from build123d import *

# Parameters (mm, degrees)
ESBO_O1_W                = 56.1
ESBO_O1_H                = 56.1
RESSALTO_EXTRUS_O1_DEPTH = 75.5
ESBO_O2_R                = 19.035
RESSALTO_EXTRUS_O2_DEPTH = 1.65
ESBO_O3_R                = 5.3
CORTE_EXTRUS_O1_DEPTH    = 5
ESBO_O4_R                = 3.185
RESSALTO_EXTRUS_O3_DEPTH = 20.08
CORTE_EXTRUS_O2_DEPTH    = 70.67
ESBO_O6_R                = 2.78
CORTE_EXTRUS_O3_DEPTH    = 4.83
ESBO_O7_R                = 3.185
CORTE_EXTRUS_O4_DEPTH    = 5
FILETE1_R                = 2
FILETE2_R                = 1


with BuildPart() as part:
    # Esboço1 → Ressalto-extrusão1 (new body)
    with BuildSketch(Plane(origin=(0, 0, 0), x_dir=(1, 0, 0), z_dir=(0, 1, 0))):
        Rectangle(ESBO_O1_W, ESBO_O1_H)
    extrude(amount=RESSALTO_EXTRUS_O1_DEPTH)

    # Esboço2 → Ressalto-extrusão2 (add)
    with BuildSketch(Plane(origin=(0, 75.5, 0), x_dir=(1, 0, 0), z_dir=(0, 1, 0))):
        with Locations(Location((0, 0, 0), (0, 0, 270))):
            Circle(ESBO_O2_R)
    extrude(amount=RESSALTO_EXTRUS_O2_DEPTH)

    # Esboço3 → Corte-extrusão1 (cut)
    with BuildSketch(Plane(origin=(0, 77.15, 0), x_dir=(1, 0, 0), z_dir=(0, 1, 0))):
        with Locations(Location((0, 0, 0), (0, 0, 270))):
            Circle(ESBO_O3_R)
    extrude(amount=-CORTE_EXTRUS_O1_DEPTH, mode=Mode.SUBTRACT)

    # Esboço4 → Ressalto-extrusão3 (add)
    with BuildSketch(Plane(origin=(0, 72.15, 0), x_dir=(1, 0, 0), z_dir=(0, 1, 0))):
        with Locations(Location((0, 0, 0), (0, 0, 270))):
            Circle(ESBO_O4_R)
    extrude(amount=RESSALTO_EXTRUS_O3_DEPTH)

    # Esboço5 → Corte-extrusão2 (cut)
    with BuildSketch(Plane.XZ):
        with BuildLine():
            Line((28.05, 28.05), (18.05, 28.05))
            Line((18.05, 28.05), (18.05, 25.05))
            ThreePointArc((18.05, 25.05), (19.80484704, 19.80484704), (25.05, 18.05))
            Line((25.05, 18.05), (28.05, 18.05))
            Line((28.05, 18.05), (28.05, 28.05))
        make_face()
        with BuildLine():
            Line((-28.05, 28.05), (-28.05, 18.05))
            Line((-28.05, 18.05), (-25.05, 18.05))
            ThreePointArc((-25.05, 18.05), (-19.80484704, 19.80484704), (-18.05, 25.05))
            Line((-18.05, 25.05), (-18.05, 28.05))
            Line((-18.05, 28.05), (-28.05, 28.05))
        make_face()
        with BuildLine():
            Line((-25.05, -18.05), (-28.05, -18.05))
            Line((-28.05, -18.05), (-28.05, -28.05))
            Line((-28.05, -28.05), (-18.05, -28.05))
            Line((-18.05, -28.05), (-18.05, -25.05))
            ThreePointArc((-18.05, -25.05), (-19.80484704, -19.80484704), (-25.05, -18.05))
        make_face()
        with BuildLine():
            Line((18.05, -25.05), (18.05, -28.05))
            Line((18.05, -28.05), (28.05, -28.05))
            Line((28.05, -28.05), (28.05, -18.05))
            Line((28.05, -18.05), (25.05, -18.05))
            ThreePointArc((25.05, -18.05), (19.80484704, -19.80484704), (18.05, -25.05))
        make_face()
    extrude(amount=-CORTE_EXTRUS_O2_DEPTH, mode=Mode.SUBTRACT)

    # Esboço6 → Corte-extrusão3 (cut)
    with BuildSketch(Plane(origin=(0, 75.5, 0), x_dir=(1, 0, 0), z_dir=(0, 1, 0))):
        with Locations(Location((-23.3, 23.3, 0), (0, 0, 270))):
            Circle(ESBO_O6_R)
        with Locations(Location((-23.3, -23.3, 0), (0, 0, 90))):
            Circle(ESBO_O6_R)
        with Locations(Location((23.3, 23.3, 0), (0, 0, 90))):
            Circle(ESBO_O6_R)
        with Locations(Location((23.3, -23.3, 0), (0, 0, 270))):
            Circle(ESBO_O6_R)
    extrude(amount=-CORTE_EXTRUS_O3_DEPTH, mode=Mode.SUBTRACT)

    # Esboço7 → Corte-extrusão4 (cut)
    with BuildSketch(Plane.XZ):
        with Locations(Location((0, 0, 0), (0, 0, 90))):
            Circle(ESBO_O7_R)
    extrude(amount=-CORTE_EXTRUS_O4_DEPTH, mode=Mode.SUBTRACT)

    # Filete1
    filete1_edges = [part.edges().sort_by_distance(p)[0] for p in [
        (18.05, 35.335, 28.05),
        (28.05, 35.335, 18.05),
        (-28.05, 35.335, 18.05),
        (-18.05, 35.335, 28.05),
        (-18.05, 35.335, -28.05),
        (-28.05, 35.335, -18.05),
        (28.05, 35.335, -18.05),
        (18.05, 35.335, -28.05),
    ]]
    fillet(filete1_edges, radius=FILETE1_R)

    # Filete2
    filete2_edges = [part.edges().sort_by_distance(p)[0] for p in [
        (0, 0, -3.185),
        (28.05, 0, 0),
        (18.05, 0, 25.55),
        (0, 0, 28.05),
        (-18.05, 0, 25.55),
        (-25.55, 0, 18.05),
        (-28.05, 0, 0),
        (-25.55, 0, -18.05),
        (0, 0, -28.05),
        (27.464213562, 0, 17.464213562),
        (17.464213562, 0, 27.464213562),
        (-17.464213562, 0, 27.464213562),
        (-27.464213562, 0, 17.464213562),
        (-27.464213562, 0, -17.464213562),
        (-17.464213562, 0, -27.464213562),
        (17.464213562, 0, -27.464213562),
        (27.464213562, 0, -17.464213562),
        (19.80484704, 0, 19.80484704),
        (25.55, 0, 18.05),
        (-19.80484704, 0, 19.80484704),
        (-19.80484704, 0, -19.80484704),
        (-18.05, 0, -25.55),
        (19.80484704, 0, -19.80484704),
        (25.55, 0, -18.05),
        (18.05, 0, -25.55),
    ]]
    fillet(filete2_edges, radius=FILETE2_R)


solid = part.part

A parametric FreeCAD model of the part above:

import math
import FreeCAD as App
import Part
import Sketcher
from FreeCAD import Vector


def edges_at(feature, points):
    """Names of the edges that pass closest to the given points."""
    edges = feature.Shape.Edges
    near = lambda p: min(range(len(edges)), key=lambda i: edges[i].distToShape(Part.Vertex(*p))[0])
    return sorted({f"Edge{near(p) + 1}" for p in points})


def add_polygon(sketch, points):
    """Adds a closed chain of lines whose ends are joined by coincident constraints."""
    first, n = sketch.GeometryCount, len(points)
    for a, b in zip(points, points[1:] + points[:1]):
        sketch.addGeometry(Part.LineSegment(App.Vector(*a, 0), App.Vector(*b, 0)), False)
    for i in range(n):
        sketch.addConstraint(Sketcher.Constraint("Coincident", first + i, 2, first + (i + 1) % n, 1))

doc = App.newDocument("Part")
body = doc.addObject("PartDesign::Body", "Body")

# Sketch on XZ plane
sketch1 = doc.addObject("Sketcher::SketchObject", "Sketch")
body.addObject(sketch1)
sketch1.AttachmentSupport = (doc.XZ_Plane, [""])
sketch1.MapMode = "FlatFace"
add_polygon(sketch1, [(-28, -28), (-28, 28), (28, 28), (28, -28)])  # lines 0-3
sketch1.addConstraint([
    Sketcher.Constraint("Vertical", 0),
    Sketcher.Constraint("Horizontal", 1),
    Sketcher.Constraint("Vertical", 2),
    Sketcher.Constraint("Horizontal", 3),
    Sketcher.Constraint("Symmetric", 0, 2, 2, 2, -1, 1),
    Sketcher.Constraint("Equal", 3, 0),
    Sketcher.Constraint("DistanceX", 1, 1, 1, 2, 56.1),
])
pad1 = doc.addObject("PartDesign::Pad", "Pad")
body.addObject(pad1)
pad1.Profile = sketch1
pad1.Length = 75.5
pad1.Reversed = True

# Sketch on XZ plane
sketch2 = doc.addObject("Sketcher::SketchObject", "Sketch001")
body.addObject(sketch2)
sketch2.AttachmentSupport = (doc.XZ_Plane, [""])
sketch2.MapMode = "FlatFace"
sketch2.AttachmentOffset = App.Placement(Vector(0, 0, -75.5), App.Rotation())
sketch2.addGeometry(Part.Circle(Vector(0, 0, 0), Vector(0, 0, 1), 19), False)
sketch2.addConstraint([
    Sketcher.Constraint("Coincident", 0, 3, -1, 1),
    Sketcher.Constraint("Diameter", 0, 38.07),
])
pad2 = doc.addObject("PartDesign::Pad", "Pad001")
body.addObject(pad2)
pad2.Profile = sketch2
pad2.Length = 1.65
pad2.Reversed = True

# Sketch on XZ plane
sketch3 = doc.addObject("Sketcher::SketchObject", "Sketch002")
body.addObject(sketch3)
sketch3.AttachmentSupport = (doc.XZ_Plane, [""])
sketch3.MapMode = "FlatFace"
sketch3.AttachmentOffset = App.Placement(Vector(0, 0, -77.15), App.Rotation())
sketch3.addGeometry(Part.Circle(Vector(0, 0, 0), Vector(0, 0, 1), 5), False)
sketch3.addConstraint([
    Sketcher.Constraint("Coincident", 0, 3, -1, 1),
    Sketcher.Constraint("Diameter", 0, 10.6),
])
pocket1 = doc.addObject("PartDesign::Pocket", "Pocket")
body.addObject(pocket1)
pocket1.Profile = sketch3
pocket1.Length = 5
pocket1.Reversed = True

# Sketch on XZ plane
sketch4 = doc.addObject("Sketcher::SketchObject", "Sketch003")
body.addObject(sketch4)
sketch4.AttachmentSupport = (doc.XZ_Plane, [""])
sketch4.MapMode = "FlatFace"
sketch4.AttachmentOffset = App.Placement(Vector(0, 0, -72.15), App.Rotation())
sketch4.addGeometry(Part.Circle(Vector(0, 0, 0), Vector(0, 0, 1), 3.2), False)
sketch4.addConstraint([
    Sketcher.Constraint("Coincident", 0, 3, -1, 1),
    Sketcher.Constraint("Diameter", 0, 6.37),
])
pad3 = doc.addObject("PartDesign::Pad", "Pad002")
body.addObject(pad3)
pad3.Profile = sketch4
pad3.Length = 20.08
pad3.Reversed = True

# Sketch on XZ plane
sketch5 = doc.addObject("Sketcher::SketchObject", "Sketch004")
body.addObject(sketch5)
sketch5.AttachmentSupport = (doc.XZ_Plane, [""])
sketch5.MapMode = "FlatFace"
sketch5.addGeometry([
    Part.LineSegment(Vector(28.1, 28.1, 0), Vector(18.1, 28.1, 0)),  # 0
    Part.LineSegment(Vector(18.1, 28.1, 0), Vector(18.1, 25.1, 0)),  # 1
    Part.ArcOfCircle(Part.Circle(Vector(24.2, 24.2, 0), Vector(0, 0, 1), 6.2), math.radians(172), math.radians(278)),  # 2
    Part.LineSegment(Vector(25.1, 18.1, 0), Vector(28.1, 18.1, 0)),  # 3
    Part.LineSegment(Vector(28.1, 18.1, 0), Vector(28.1, 28.1, 0)),  # 4
    Part.LineSegment(Vector(-28.1, 28.1, 0), Vector(-28.1, 18.1, 0)),  # 5
    Part.LineSegment(Vector(-28.1, 18.1, 0), Vector(-25.1, 18.1, 0)),  # 6
    Part.ArcOfCircle(Part.Circle(Vector(-24.2, 24.2, 0), Vector(0, 0, 1), 6.2), math.radians(-98), math.radians(8)),  # 7
    Part.LineSegment(Vector(-18.1, 25.1, 0), Vector(-18.1, 28.1, 0)),  # 8
    Part.LineSegment(Vector(-18.1, 28.1, 0), Vector(-28.1, 28.1, 0)),  # 9
    Part.LineSegment(Vector(-25.1, -18.1, 0), Vector(-28.1, -18.1, 0)),  # 10
    Part.LineSegment(Vector(-28.1, -18.1, 0), Vector(-28.1, -28.1, 0)),  # 11
    Part.LineSegment(Vector(-28.1, -28.1, 0), Vector(-18.1, -28.1, 0)),  # 12
    Part.LineSegment(Vector(-18.1, -28.1, 0), Vector(-18.1, -25.1, 0)),  # 13
    Part.ArcOfCircle(Part.Circle(Vector(-24.2, -24.2, 0), Vector(0, 0, 1), 6.2), math.radians(-8), math.radians(98)),  # 14
    Part.LineSegment(Vector(18.1, -25.1, 0), Vector(18.1, -28.1, 0)),  # 15
    Part.LineSegment(Vector(18.1, -28.1, 0), Vector(28.1, -28.1, 0)),  # 16
    Part.LineSegment(Vector(28.1, -28.1, 0), Vector(28.1, -18.1, 0)),  # 17
    Part.LineSegment(Vector(28.1, -18.1, 0), Vector(25.1, -18.1, 0)),  # 18
    Part.ArcOfCircle(Part.Circle(Vector(24.2, -24.2, 0), Vector(0, 0, 1), 6.2), math.radians(82), math.radians(188)),  # 19
], False)
sketch5.addConstraint([
    Sketcher.Constraint("Coincident", 0, 2, 1, 1),
    Sketcher.Constraint("Coincident", 1, 2, 2, 1),
    Sketcher.Constraint("Coincident", 2, 2, 3, 1),
    Sketcher.Constraint("Coincident", 3, 2, 4, 1),
    Sketcher.Constraint("Coincident", 4, 2, 0, 1),
    Sketcher.Constraint("Coincident", 5, 2, 6, 1),
    Sketcher.Constraint("Coincident", 6, 2, 7, 1),
    Sketcher.Constraint("Coincident", 7, 2, 8, 1),
    Sketcher.Constraint("Coincident", 8, 2, 9, 1),
    Sketcher.Constraint("Coincident", 9, 2, 5, 1),
    Sketcher.Constraint("Coincident", 10, 2, 11, 1),
    Sketcher.Constraint("Coincident", 11, 2, 12, 1),
    Sketcher.Constraint("Coincident", 12, 2, 13, 1),
    Sketcher.Constraint("Coincident", 13, 2, 14, 1),
    Sketcher.Constraint("Coincident", 14, 2, 10, 1),
    Sketcher.Constraint("Coincident", 15, 2, 16, 1),
    Sketcher.Constraint("Coincident", 16, 2, 17, 1),
    Sketcher.Constraint("Coincident", 17, 2, 18, 1),
    Sketcher.Constraint("Coincident", 18, 2, 19, 1),
    Sketcher.Constraint("Coincident", 19, 2, 15, 1),
    Sketcher.Constraint("Horizontal", 0),
    Sketcher.Constraint("Vertical", 1),
    Sketcher.Constraint("Horizontal", 3),
    Sketcher.Constraint("Vertical", 4),
    Sketcher.Constraint("Vertical", 5),
    Sketcher.Constraint("Horizontal", 6),
    Sketcher.Constraint("Vertical", 8),
    Sketcher.Constraint("Horizontal", 9),
    Sketcher.Constraint("Horizontal", 10),
    Sketcher.Constraint("Vertical", 11),
    Sketcher.Constraint("Horizontal", 12),
    Sketcher.Constraint("Vertical", 13),
    Sketcher.Constraint("Vertical", 15),
    Sketcher.Constraint("Horizontal", 16),
    Sketcher.Constraint("Vertical", 17),
    Sketcher.Constraint("Horizontal", 18),
    Sketcher.Constraint("Equal", 2, 7),
    Sketcher.Constraint("Equal", 7, 14),
    Sketcher.Constraint("Equal", 14, 19),
    Sketcher.Constraint("Symmetric", 2, 3, 14, 3, -1, 1),
    Sketcher.Constraint("Symmetric", 7, 3, 19, 3, -1, 1),
    Sketcher.Constraint("Symmetric", 3, 2, 10, 2, -1, 1),
    Sketcher.Constraint("Symmetric", 0, 2, 12, 2, -1, 1),
    Sketcher.Constraint("Symmetric", 8, 2, 15, 2, -1, 1),
    Sketcher.Constraint("Symmetric", 5, 2, 17, 2, -1, 1),
    Sketcher.Constraint("Symmetric", 2, 3, 7, 3, -2),
    Sketcher.Constraint("Symmetric", 3, 2, 5, 2, -2),
    Sketcher.Constraint("Symmetric", 0, 2, 8, 2, -2),
    Sketcher.Constraint("Equal", 18, 1),
    Sketcher.Constraint("Equal", 16, 4),
    Sketcher.Constraint("DistanceX", 0, 2, 0, 1, 10.0),
    Sketcher.Constraint("DistanceX", 3, 1, 3, 2, 3.0),
    Sketcher.Constraint("DistanceX", 5, 2, 1, 2, 46.1),
    Sketcher.Constraint("DistanceY", 10, 2, 5, 2, 36.1),
    Sketcher.Constraint("Radius", 2, 6.197505),
])
pocket2 = doc.addObject("PartDesign::Pocket", "Pocket001")
body.addObject(pocket2)
pocket2.Profile = sketch5
pocket2.Length = 70.67

# Sketch on XZ plane
sketch6 = doc.addObject("Sketcher::SketchObject", "Sketch005")
body.addObject(sketch6)
sketch6.AttachmentSupport = (doc.XZ_Plane, [""])
sketch6.MapMode = "FlatFace"
sketch6.AttachmentOffset = App.Placement(Vector(0, 0, -75.5), App.Rotation())
sketch6.addGeometry([
    Part.Circle(Vector(-23.3, -23.3, 0), Vector(0, 0, 1), 2.8),
    Part.Circle(Vector(-23.3, 23.3, 0), Vector(0, 0, 1), 2.8),
    Part.Circle(Vector(23.3, -23.3, 0), Vector(0, 0, 1), 2.8),
    Part.Circle(Vector(23.3, 23.3, 0), Vector(0, 0, 1), 2.8),
], False)
sketch6.addConstraint([
    Sketcher.Constraint("Equal", 0, 1),
    Sketcher.Constraint("Equal", 1, 2),
    Sketcher.Constraint("Equal", 2, 3),
    Sketcher.Constraint("Symmetric", 1, 3, 2, 3, -1, 1),
    Sketcher.Constraint("Symmetric", 0, 3, 3, 3, -1, 1),
    Sketcher.Constraint("Symmetric", 0, 3, 2, 3, -2),
    Sketcher.Constraint("Diameter", 0, 5.56),
    Sketcher.Constraint("DistanceX", 0, 3, -1, 1, 23.3),
    Sketcher.Constraint("DistanceY", 0, 3, -1, 1, 23.3),
])
pocket3 = doc.addObject("PartDesign::Pocket", "Pocket002")
body.addObject(pocket3)
pocket3.Profile = sketch6
pocket3.Length = 4.83
pocket3.Reversed = True

# Sketch on XZ plane
sketch7 = doc.addObject("Sketcher::SketchObject", "Sketch006")
body.addObject(sketch7)
sketch7.AttachmentSupport = (doc.XZ_Plane, [""])
sketch7.MapMode = "FlatFace"
sketch7.addGeometry(Part.Circle(Vector(0, 0, 0), Vector(0, 0, 1), 3.2), False)
sketch7.addConstraint([
    Sketcher.Constraint("Coincident", 0, 3, -1, 1),
    Sketcher.Constraint("Diameter", 0, 6.37),
])
pocket4 = doc.addObject("PartDesign::Pocket", "Pocket003")
body.addObject(pocket4)
pocket4.Profile = sketch7
pocket4.Length = 5
doc.recompute()

fillet = doc.addObject("PartDesign::Fillet", "Fillet")
body.addObject(fillet)
fillet.Base = (pocket4, edges_at(pocket4, [
    (18.05, 35.335, 28.05),
    (28.05, 35.335, 18.05),
    (-28.05, 35.335, 18.05),
    (-18.05, 35.335, 28.05),
    (-18.05, 35.335, -28.05),
    (-28.05, 35.335, -18.05),
    (28.05, 35.335, -18.05),
    (18.05, 35.335, -28.05),
]))
fillet.Radius = 2
doc.recompute()

fillet2 = doc.addObject("PartDesign::Fillet", "Fillet001")
body.addObject(fillet2)
fillet2.Base = (fillet, edges_at(fillet, [
    (0, 0, -3.185),
    (28.05, 0, 0),
    (18.05, 0, 25.55),
    (0, 0, 28.05),
    (-18.05, 0, 25.55),
    (-25.55, 0, 18.05),
    (-28.05, 0, 0),
    (-25.55, 0, -18.05),
    (0, 0, -28.05),
    (27.464, 0, 17.464),
    (17.464, 0, 27.464),
    (-17.464, 0, 27.464),
    (-27.464, 0, 17.464),
    (-27.464, 0, -17.464),
    (-17.464, 0, -27.464),
    (17.464, 0, -27.464),
    (27.464, 0, -17.464),
    (19.805, 0, 19.805),
    (25.55, 0, 18.05),
    (-19.805, 0, 19.805),
    (-19.805, 0, -19.805),
    (-18.05, 0, -25.55),
    (19.805, 0, -19.805),
    (25.55, 0, -18.05),
    (18.05, 0, -25.55),
]))
fillet2.Radius = 1

doc.recompute()
